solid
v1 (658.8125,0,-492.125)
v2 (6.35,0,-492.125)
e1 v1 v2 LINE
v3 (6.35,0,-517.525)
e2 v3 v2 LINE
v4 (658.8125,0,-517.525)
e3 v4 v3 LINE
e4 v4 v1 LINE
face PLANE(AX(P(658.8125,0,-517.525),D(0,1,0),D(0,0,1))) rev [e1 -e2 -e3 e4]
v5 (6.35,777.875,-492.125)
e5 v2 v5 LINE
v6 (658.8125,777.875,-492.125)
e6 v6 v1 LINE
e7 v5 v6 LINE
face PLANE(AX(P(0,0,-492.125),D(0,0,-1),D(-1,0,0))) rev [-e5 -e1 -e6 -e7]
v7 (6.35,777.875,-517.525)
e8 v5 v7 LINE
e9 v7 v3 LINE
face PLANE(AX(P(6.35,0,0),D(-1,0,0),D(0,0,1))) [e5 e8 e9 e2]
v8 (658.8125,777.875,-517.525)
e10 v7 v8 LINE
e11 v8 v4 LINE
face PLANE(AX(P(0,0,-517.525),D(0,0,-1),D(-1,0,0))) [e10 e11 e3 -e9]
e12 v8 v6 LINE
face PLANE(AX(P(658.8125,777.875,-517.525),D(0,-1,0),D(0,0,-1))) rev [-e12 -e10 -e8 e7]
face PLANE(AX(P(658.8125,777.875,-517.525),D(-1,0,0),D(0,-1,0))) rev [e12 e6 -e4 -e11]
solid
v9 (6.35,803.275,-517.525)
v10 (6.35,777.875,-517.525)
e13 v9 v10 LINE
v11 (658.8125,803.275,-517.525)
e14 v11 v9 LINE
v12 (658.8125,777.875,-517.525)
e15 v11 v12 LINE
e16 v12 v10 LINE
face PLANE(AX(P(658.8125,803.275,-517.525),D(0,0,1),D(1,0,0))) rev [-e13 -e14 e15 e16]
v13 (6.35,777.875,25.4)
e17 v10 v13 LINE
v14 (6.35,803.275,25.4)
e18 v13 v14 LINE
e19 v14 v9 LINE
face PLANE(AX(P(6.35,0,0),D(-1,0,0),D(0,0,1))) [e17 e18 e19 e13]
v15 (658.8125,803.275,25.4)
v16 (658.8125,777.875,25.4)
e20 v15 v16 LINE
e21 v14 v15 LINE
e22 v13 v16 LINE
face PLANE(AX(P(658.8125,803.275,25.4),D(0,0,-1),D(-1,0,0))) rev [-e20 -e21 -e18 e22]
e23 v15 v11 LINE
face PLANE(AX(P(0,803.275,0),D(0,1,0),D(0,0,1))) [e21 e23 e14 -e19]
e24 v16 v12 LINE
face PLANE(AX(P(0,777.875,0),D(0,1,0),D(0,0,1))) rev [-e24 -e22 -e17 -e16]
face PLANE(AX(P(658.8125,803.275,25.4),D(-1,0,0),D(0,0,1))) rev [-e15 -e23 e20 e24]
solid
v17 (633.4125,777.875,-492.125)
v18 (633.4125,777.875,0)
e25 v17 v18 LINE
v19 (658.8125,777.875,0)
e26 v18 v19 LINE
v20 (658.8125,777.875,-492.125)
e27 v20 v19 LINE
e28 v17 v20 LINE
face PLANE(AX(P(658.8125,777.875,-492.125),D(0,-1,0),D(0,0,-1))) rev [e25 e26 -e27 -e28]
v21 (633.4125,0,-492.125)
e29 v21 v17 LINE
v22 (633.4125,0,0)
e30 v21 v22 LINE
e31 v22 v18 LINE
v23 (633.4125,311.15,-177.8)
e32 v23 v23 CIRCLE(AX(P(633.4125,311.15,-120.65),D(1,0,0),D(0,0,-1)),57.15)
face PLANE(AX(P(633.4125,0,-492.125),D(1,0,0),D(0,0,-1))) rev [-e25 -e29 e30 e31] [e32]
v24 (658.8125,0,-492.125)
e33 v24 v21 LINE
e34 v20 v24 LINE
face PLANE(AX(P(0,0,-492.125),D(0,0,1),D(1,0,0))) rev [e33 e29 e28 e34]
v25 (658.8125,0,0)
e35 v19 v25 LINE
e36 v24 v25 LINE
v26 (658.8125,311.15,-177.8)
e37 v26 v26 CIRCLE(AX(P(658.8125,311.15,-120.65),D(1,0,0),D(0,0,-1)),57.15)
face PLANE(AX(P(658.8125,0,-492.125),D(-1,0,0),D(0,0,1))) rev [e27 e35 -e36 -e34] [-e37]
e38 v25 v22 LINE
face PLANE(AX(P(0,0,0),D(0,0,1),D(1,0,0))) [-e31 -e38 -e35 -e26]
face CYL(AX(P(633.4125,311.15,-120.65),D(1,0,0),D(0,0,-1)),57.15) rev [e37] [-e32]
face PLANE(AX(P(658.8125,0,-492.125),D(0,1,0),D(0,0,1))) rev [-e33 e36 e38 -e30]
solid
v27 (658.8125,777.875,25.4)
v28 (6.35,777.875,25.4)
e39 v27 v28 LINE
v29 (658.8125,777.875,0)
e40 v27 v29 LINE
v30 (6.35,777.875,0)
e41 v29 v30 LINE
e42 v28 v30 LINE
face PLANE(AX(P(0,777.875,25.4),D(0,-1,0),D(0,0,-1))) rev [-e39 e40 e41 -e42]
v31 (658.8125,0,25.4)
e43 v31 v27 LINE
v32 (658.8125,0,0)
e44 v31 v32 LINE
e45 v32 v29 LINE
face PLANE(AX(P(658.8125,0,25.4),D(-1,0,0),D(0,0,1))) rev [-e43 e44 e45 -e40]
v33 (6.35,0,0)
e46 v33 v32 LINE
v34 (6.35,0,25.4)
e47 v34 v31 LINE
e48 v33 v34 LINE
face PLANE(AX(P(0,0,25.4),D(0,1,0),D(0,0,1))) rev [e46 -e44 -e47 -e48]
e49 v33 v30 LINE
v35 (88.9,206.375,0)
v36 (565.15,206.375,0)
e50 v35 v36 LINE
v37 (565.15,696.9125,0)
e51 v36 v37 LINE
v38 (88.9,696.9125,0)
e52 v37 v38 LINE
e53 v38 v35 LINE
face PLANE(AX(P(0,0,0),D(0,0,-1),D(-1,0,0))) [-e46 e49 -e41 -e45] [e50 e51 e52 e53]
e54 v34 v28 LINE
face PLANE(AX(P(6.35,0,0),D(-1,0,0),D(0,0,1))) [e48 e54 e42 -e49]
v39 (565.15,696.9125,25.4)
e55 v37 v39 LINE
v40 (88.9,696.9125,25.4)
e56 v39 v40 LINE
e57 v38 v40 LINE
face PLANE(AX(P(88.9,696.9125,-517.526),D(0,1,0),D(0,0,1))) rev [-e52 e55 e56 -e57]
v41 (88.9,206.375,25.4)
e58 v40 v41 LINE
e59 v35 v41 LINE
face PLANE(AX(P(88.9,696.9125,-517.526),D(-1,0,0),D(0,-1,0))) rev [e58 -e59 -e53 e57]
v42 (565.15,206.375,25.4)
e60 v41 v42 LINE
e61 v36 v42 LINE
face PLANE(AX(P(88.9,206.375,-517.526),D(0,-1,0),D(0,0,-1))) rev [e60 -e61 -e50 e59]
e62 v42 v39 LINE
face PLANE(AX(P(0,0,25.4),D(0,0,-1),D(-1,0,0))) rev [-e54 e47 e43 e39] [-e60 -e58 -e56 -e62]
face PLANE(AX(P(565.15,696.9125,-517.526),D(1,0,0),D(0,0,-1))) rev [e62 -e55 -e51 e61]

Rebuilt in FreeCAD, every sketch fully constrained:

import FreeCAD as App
import Part
import Sketcher
Q = App.Units.Quantity

doc = App.newDocument("Part")
params = doc.addObject("Spreadsheet::Sheet", "Params")
for row, (alias, value) in enumerate([
    ("sketch1_width", "25.9375 in"),
    ("sketch1_height", "30.625 in"),
    ("pad1_length", "1 in"),
    ("sketch2_width", "1 in"),
    ("sketch2_height", "30.625 in"),
    ("pad2_length", "19.375 in"),
    ("sketch3_diameter", "4.5 in"),
    ("pocket1_length", "1 in"),
    ("sketch4_width", "25.9375 in"),
    ("sketch4_height", "30.625 in"),
    ("pad3_length", "1 in"),
    ("sketch5_width", "25.9375 in"),
    ("sketch5_height", "21.375 in"),
    ("pad4_length", "1 in"),
    ("sketch6_width", "31.625 in"),
    ("sketch6_height", "21.375 in"),
    ("pad5_length", "0.25 in"),
    ("sketch7_width", "18.75 in"),
    ("sketch7_height", "19.3125 in"),
    ("pocket2_length", "1 in"),
], start=1):
    params.set(f"A{row}", alias)
    params.set(f"B{row}", "=" + value)
    params.setAlias(f"B{row}", alias)

body = doc.addObject("PartDesign::Body", "Body")

sketch1 = body.newObject("Sketcher::SketchObject", "Sketch")
sketch1.AttachmentSupport = (doc.getObject("XY_Plane"), [""])
sketch1.MapMode = "FlatFace"
sketch1.addGeometry([
    Part.LineSegment(App.Vector(0, 777.875, 0), App.Vector(0, 0, 0)),
    Part.LineSegment(App.Vector(0, 0, 0), App.Vector(658.8125, 0, 0)),
    Part.LineSegment(App.Vector(658.8125, 0, 0), App.Vector(658.8125, 777.875, 0)),
    Part.LineSegment(App.Vector(658.8125, 777.875, 0), App.Vector(0, 777.875, 0)),
], False)
sketch1.addConstraint([
    Sketcher.Constraint("Coincident", 0, 2, 1, 1),
    Sketcher.Constraint("Coincident", 1, 2, 2, 1),
    Sketcher.Constraint("Coincident", 2, 2, 3, 1),
    Sketcher.Constraint("Coincident", 3, 2, 0, 1),
    Sketcher.Constraint("Vertical", 0),
    Sketcher.Constraint("Horizontal", 1),
    Sketcher.Constraint("Vertical", 2),
    Sketcher.Constraint("Horizontal", 3),
    Sketcher.Constraint("Coincident", 0, 2, -1, 1),
    Sketcher.Constraint("DistanceX", 1, 1, 1, 2, Q("25.9375 in")),
    Sketcher.Constraint("DistanceY", 0, 2, 0, 1, Q("30.625 in")),
])
sketch1.setExpression("Constraints[9]", "Params.sketch1_width")
sketch1.setExpression("Constraints[10]", "Params.sketch1_height")
pad1 = body.newObject("PartDesign::Pad", "Pad")
pad1.Profile = sketch1
pad1.setExpression("Length", "Params.pad1_length")
body2 = doc.addObject("PartDesign::Body", "Body001")

sketch2 = body2.newObject("Sketcher::SketchObject", "Sketch001")
sketch2.AttachmentSupport = (doc.getObject("XY_Plane001"), [""])
sketch2.MapMode = "FlatFace"
sketch2.addGeometry([
    Part.LineSegment(App.Vector(658.8125, 777.875, 0), App.Vector(658.8125, 0, 0)),
    Part.LineSegment(App.Vector(658.8125, 0, 0), App.Vector(633.4125, 0, 0)),
    Part.LineSegment(App.Vector(633.4125, 0, 0), App.Vector(633.4125, 777.875, 0)),
    Part.LineSegment(App.Vector(633.4125, 777.875, 0), App.Vector(658.8125, 777.875, 0)),
], False)
sketch2.addConstraint([
    Sketcher.Constraint("Coincident", 0, 2, 1, 1),
    Sketcher.Constraint("Coincident", 1, 2, 2, 1),
    Sketcher.Constraint("Coincident", 2, 2, 3, 1),
    Sketcher.Constraint("Coincident", 3, 2, 0, 1),
    Sketcher.Constraint("Vertical", 0),
    Sketcher.Constraint("Horizontal", 1),
    Sketcher.Constraint("Vertical", 2),
    Sketcher.Constraint("Horizontal", 3),
    Sketcher.Constraint("PointOnObject", 0, 2, -1),
    Sketcher.Constraint("DistanceX", 1, 2, 1, 1, Q("1 in")),
    Sketcher.Constraint("DistanceY", 0, 2, 0, 1, Q("30.625 in")),
    Sketcher.Constraint("DistanceX", -1, 1, 0, 2, Q("25.9375 in")),
])
sketch2.setExpression("Constraints[9]", "Params.sketch2_width")
sketch2.setExpression("Constraints[10]", "Params.sketch2_height")
pad2 = body2.newObject("PartDesign::Pad", "Pad001")
pad2.Profile = sketch2
pad2.setExpression("Length", "Params.pad2_length")
pad2.Reversed = True

sketch3 = body2.newObject("Sketcher::SketchObject", "Sketch002")
sketch3.AttachmentSupport = (doc.getObject("YZ_Plane001"), [""])
sketch3.MapMode = "FlatFace"
sketch3.AttachmentOffset = App.Placement(App.Vector(0, 0, 25.9375 * 25.4), App.Rotation())
sketch3.addGeometry(Part.Circle(App.Vector(311.15, -120.65, 0), App.Vector(0, 0, 1), 57.15), False)
sketch3.addConstraint([
    Sketcher.Constraint("Diameter", 0, Q("4.5 in")),
    Sketcher.Constraint("DistanceX", -1, 1, 0, 3, Q("12.25 in")),
    Sketcher.Constraint("DistanceY", 0, 3, -1, 1, Q("4.75 in")),
])
sketch3.setExpression("Constraints[0]", "Params.sketch3_diameter")
pocket1 = body2.newObject("PartDesign::Pocket", "Pocket")
pocket1.Profile = sketch3
pocket1.setExpression("Length", "Params.pocket1_length")
body3 = doc.addObject("PartDesign::Body", "Body002")

sketch4 = body3.newObject("Sketcher::SketchObject", "Sketch003")
sketch4.AttachmentSupport = (doc.getObject("XY_Plane002"), [""])
sketch4.MapMode = "FlatFace"
sketch4.AttachmentOffset = App.Placement(App.Vector(0, 0, -19.375 * 25.4), App.Rotation())
sketch4.addGeometry([
    Part.LineSegment(App.Vector(658.8125, 777.875, 0), App.Vector(658.8125, 0, 0)),
    Part.LineSegment(App.Vector(658.8125, 0, 0), App.Vector(0, 0, 0)),
    Part.LineSegment(App.Vector(0, 0, 0), App.Vector(0, 777.875, 0)),
    Part.LineSegment(App.Vector(0, 777.875, 0), App.Vector(658.8125, 777.875, 0)),
], False)
sketch4.addConstraint([
    Sketcher.Constraint("Coincident", 0, 2, 1, 1),
    Sketcher.Constraint("Coincident", 1, 2, 2, 1),
    Sketcher.Constraint("Coincident", 2, 2, 3, 1),
    Sketcher.Constraint("Coincident", 3, 2, 0, 1),
    Sketcher.Constraint("Vertical", 0),
    Sketcher.Constraint("Horizontal", 1),
    Sketcher.Constraint("Vertical", 2),
    Sketcher.Constraint("Horizontal", 3),
    Sketcher.Constraint("Coincident", 1, 2, -1, 1),
    Sketcher.Constraint("DistanceX", 1, 2, 1, 1, Q("25.9375 in")),
    Sketcher.Constraint("DistanceY", 0, 2, 0, 1, Q("30.625 in")),
])
sketch4.setExpression("Constraints[9]", "Params.sketch4_width")
sketch4.setExpression("Constraints[10]", "Params.sketch4_height")
pad3 = body3.newObject("PartDesign::Pad", "Pad002")
pad3.Profile = sketch4
pad3.setExpression("Length", "Params.pad3_length")
pad3.Reversed = True
body4 = doc.addObject("PartDesign::Body", "Body003")

sketch5 = body4.newObject("Sketcher::SketchObject", "Sketch004")
sketch5.AttachmentSupport = (doc.getObject("XZ_Plane003"), [""])
sketch5.MapMode = "FlatFace"
sketch5.AttachmentOffset = App.Placement(App.Vector(0, 0, -30.625 * 25.4), App.Rotation())
sketch5.addGeometry([
    Part.LineSegment(App.Vector(0, -517.525, 0), App.Vector(0, 25.4, 0)),
    Part.LineSegment(App.Vector(0, 25.4, 0), App.Vector(658.8125, 25.4, 0)),
    Part.LineSegment(App.Vector(658.8125, 25.4, 0), App.Vector(658.8125, -517.525, 0)),
    Part.LineSegment(App.Vector(658.8125, -517.525, 0), App.Vector(0, -517.525, 0)),
], False)
sketch5.addConstraint([
    Sketcher.Constraint("Coincident", 0, 2, 1, 1),
    Sketcher.Constraint("Coincident", 1, 2, 2, 1),
    Sketcher.Constraint("Coincident", 2, 2, 3, 1),
    Sketcher.Constraint("Coincident", 3, 2, 0, 1),
    Sketcher.Constraint("Vertical", 0),
    Sketcher.Constraint("Horizontal", 1),
    Sketcher.Constraint("Vertical", 2),
    Sketcher.Constraint("Horizontal", 3),
    Sketcher.Constraint("PointOnObject", 0, 2, -2),
    Sketcher.Constraint("DistanceY", -1, 1, 0, 2, Q("1 in")),
    Sketcher.Constraint("DistanceX", 1, 1, 1, 2, Q("25.9375 in")),
    Sketcher.Constraint("DistanceY", 0, 1, 0, 2, Q("21.375 in")),
])
sketch5.setExpression("Constraints[10]", "Params.sketch5_width")
sketch5.setExpression("Constraints[11]", "Params.sketch5_height")
pad4 = body4.newObject("PartDesign::Pad", "Pad003")
pad4.Profile = sketch5
pad4.setExpression("Length", "Params.pad4_length")
pad4.Reversed = True
body5 = doc.addObject("PartDesign::Body", "Body004")

sketch6 = body5.newObject("Sketcher::SketchObject", "Sketch005")
sketch6.AttachmentSupport = (doc.getObject("YZ_Plane004"), [""])
sketch6.MapMode = "FlatFace"
sketch6.addGeometry([
    Part.LineSegment(App.Vector(803.275, -517.525, 0), App.Vector(0, -517.525, 0)),
    Part.LineSegment(App.Vector(0, -517.525, 0), App.Vector(0, 25.4, 0)),
    Part.LineSegment(App.Vector(0, 25.4, 0), App.Vector(803.275, 25.4, 0)),
    Part.LineSegment(App.Vector(803.275, 25.4, 0), App.Vector(803.275, -517.525, 0)),
], False)
sketch6.addConstraint([
    Sketcher.Constraint("Coincident", 0, 2, 1, 1),
    Sketcher.Constraint("Coincident", 1, 2, 2, 1),
    Sketcher.Constraint("Coincident", 2, 2, 3, 1),
    Sketcher.Constraint("Coincident", 3, 2, 0, 1),
    Sketcher.Constraint("Horizontal", 0),
    Sketcher.Constraint("Vertical", 1),
    Sketcher.Constraint("Horizontal", 2),
    Sketcher.Constraint("Vertical", 3),
    Sketcher.Constraint("PointOnObject", 0, 2, -2),
    Sketcher.Constraint("DistanceY", -1, 1, 1, 2, Q("1 in")),
    Sketcher.Constraint("DistanceX", 0, 2, 0, 1, Q("31.625 in")),
    Sketcher.Constraint("DistanceY", 1, 1, 1, 2, Q("21.375 in")),
])
sketch6.setExpression("Constraints[10]", "Params.sketch6_width")
sketch6.setExpression("Constraints[11]", "Params.sketch6_height")
pad5 = body5.newObject("PartDesign::Pad", "Pad004")
pad5.Profile = sketch6
pad5.setExpression("Length", "Params.pad5_length")
doc.recompute()

body6 = doc.addObject("PartDesign::Body", "Body005")
body6.BaseFeature = body5
boolean = body.newObject("PartDesign::Boolean", "Boolean")
boolean.Type = "Cut"
boolean.addObjects([body6])
doc.recompute()

sketch7 = body.newObject("Sketcher::SketchObject", "Sketch006")
sketch7.AttachmentSupport = (doc.getObject("XY_Plane"), [""])
sketch7.MapMode = "FlatFace"
sketch7.AttachmentOffset = App.Placement(App.Vector(0, 0, 1 * 25.4), App.Rotation())
sketch7.addGeometry([
    Part.LineSegment(App.Vector(88.9, 696.9125, 0), App.Vector(88.9, 206.375, 0)),
    Part.LineSegment(App.Vector(88.9, 206.375, 0), App.Vector(565.15, 206.375, 0)),
    Part.LineSegment(App.Vector(565.15, 206.375, 0), App.Vector(565.15, 696.9125, 0)),
    Part.LineSegment(App.Vector(565.15, 696.9125, 0), App.Vector(88.9, 696.9125, 0)),
], False)
sketch7.addConstraint([
    Sketcher.Constraint("Coincident", 0, 2, 1, 1),
    Sketcher.Constraint("Coincident", 1, 2, 2, 1),
    Sketcher.Constraint("Coincident", 2, 2, 3, 1),
    Sketcher.Constraint("Coincident", 3, 2, 0, 1),
    Sketcher.Constraint("Vertical", 0),
    Sketcher.Constraint("Horizontal", 1),
    Sketcher.Constraint("Vertical", 2),
    Sketcher.Constraint("Horizontal", 3),
    Sketcher.Constraint("DistanceX", 1, 1, 1, 2, Q("18.75 in")),
    Sketcher.Constraint("DistanceX", -1, 1, 0, 2, Q("3.5 in")),
    Sketcher.Constraint("DistanceY", 0, 2, 0, 1, Q("19.3125 in")),
    Sketcher.Constraint("DistanceY", -1, 1, 0, 2, Q("8.125 in")),
])
sketch7.setExpression("Constraints[8]", "Params.sketch7_width")
sketch7.setExpression("Constraints[10]", "Params.sketch7_height")
pocket2 = body.newObject("PartDesign::Pocket", "Pocket001")
pocket2.Profile = sketch7
pocket2.setExpression("Length", "Params.pocket2_length")
doc.recompute()

body7 = doc.addObject("PartDesign::Body", "Body006")
body7.BaseFeature = body5
boolean2 = body3.newObject("PartDesign::Boolean", "Boolean001")
boolean2.Type = "Cut"
boolean2.addObjects([body7])
doc.recompute()

boolean3 = body4.newObject("PartDesign::Boolean", "Boolean002")
boolean3.Type = "Cut"
boolean3.addObjects([body5])

doc.recompute()
